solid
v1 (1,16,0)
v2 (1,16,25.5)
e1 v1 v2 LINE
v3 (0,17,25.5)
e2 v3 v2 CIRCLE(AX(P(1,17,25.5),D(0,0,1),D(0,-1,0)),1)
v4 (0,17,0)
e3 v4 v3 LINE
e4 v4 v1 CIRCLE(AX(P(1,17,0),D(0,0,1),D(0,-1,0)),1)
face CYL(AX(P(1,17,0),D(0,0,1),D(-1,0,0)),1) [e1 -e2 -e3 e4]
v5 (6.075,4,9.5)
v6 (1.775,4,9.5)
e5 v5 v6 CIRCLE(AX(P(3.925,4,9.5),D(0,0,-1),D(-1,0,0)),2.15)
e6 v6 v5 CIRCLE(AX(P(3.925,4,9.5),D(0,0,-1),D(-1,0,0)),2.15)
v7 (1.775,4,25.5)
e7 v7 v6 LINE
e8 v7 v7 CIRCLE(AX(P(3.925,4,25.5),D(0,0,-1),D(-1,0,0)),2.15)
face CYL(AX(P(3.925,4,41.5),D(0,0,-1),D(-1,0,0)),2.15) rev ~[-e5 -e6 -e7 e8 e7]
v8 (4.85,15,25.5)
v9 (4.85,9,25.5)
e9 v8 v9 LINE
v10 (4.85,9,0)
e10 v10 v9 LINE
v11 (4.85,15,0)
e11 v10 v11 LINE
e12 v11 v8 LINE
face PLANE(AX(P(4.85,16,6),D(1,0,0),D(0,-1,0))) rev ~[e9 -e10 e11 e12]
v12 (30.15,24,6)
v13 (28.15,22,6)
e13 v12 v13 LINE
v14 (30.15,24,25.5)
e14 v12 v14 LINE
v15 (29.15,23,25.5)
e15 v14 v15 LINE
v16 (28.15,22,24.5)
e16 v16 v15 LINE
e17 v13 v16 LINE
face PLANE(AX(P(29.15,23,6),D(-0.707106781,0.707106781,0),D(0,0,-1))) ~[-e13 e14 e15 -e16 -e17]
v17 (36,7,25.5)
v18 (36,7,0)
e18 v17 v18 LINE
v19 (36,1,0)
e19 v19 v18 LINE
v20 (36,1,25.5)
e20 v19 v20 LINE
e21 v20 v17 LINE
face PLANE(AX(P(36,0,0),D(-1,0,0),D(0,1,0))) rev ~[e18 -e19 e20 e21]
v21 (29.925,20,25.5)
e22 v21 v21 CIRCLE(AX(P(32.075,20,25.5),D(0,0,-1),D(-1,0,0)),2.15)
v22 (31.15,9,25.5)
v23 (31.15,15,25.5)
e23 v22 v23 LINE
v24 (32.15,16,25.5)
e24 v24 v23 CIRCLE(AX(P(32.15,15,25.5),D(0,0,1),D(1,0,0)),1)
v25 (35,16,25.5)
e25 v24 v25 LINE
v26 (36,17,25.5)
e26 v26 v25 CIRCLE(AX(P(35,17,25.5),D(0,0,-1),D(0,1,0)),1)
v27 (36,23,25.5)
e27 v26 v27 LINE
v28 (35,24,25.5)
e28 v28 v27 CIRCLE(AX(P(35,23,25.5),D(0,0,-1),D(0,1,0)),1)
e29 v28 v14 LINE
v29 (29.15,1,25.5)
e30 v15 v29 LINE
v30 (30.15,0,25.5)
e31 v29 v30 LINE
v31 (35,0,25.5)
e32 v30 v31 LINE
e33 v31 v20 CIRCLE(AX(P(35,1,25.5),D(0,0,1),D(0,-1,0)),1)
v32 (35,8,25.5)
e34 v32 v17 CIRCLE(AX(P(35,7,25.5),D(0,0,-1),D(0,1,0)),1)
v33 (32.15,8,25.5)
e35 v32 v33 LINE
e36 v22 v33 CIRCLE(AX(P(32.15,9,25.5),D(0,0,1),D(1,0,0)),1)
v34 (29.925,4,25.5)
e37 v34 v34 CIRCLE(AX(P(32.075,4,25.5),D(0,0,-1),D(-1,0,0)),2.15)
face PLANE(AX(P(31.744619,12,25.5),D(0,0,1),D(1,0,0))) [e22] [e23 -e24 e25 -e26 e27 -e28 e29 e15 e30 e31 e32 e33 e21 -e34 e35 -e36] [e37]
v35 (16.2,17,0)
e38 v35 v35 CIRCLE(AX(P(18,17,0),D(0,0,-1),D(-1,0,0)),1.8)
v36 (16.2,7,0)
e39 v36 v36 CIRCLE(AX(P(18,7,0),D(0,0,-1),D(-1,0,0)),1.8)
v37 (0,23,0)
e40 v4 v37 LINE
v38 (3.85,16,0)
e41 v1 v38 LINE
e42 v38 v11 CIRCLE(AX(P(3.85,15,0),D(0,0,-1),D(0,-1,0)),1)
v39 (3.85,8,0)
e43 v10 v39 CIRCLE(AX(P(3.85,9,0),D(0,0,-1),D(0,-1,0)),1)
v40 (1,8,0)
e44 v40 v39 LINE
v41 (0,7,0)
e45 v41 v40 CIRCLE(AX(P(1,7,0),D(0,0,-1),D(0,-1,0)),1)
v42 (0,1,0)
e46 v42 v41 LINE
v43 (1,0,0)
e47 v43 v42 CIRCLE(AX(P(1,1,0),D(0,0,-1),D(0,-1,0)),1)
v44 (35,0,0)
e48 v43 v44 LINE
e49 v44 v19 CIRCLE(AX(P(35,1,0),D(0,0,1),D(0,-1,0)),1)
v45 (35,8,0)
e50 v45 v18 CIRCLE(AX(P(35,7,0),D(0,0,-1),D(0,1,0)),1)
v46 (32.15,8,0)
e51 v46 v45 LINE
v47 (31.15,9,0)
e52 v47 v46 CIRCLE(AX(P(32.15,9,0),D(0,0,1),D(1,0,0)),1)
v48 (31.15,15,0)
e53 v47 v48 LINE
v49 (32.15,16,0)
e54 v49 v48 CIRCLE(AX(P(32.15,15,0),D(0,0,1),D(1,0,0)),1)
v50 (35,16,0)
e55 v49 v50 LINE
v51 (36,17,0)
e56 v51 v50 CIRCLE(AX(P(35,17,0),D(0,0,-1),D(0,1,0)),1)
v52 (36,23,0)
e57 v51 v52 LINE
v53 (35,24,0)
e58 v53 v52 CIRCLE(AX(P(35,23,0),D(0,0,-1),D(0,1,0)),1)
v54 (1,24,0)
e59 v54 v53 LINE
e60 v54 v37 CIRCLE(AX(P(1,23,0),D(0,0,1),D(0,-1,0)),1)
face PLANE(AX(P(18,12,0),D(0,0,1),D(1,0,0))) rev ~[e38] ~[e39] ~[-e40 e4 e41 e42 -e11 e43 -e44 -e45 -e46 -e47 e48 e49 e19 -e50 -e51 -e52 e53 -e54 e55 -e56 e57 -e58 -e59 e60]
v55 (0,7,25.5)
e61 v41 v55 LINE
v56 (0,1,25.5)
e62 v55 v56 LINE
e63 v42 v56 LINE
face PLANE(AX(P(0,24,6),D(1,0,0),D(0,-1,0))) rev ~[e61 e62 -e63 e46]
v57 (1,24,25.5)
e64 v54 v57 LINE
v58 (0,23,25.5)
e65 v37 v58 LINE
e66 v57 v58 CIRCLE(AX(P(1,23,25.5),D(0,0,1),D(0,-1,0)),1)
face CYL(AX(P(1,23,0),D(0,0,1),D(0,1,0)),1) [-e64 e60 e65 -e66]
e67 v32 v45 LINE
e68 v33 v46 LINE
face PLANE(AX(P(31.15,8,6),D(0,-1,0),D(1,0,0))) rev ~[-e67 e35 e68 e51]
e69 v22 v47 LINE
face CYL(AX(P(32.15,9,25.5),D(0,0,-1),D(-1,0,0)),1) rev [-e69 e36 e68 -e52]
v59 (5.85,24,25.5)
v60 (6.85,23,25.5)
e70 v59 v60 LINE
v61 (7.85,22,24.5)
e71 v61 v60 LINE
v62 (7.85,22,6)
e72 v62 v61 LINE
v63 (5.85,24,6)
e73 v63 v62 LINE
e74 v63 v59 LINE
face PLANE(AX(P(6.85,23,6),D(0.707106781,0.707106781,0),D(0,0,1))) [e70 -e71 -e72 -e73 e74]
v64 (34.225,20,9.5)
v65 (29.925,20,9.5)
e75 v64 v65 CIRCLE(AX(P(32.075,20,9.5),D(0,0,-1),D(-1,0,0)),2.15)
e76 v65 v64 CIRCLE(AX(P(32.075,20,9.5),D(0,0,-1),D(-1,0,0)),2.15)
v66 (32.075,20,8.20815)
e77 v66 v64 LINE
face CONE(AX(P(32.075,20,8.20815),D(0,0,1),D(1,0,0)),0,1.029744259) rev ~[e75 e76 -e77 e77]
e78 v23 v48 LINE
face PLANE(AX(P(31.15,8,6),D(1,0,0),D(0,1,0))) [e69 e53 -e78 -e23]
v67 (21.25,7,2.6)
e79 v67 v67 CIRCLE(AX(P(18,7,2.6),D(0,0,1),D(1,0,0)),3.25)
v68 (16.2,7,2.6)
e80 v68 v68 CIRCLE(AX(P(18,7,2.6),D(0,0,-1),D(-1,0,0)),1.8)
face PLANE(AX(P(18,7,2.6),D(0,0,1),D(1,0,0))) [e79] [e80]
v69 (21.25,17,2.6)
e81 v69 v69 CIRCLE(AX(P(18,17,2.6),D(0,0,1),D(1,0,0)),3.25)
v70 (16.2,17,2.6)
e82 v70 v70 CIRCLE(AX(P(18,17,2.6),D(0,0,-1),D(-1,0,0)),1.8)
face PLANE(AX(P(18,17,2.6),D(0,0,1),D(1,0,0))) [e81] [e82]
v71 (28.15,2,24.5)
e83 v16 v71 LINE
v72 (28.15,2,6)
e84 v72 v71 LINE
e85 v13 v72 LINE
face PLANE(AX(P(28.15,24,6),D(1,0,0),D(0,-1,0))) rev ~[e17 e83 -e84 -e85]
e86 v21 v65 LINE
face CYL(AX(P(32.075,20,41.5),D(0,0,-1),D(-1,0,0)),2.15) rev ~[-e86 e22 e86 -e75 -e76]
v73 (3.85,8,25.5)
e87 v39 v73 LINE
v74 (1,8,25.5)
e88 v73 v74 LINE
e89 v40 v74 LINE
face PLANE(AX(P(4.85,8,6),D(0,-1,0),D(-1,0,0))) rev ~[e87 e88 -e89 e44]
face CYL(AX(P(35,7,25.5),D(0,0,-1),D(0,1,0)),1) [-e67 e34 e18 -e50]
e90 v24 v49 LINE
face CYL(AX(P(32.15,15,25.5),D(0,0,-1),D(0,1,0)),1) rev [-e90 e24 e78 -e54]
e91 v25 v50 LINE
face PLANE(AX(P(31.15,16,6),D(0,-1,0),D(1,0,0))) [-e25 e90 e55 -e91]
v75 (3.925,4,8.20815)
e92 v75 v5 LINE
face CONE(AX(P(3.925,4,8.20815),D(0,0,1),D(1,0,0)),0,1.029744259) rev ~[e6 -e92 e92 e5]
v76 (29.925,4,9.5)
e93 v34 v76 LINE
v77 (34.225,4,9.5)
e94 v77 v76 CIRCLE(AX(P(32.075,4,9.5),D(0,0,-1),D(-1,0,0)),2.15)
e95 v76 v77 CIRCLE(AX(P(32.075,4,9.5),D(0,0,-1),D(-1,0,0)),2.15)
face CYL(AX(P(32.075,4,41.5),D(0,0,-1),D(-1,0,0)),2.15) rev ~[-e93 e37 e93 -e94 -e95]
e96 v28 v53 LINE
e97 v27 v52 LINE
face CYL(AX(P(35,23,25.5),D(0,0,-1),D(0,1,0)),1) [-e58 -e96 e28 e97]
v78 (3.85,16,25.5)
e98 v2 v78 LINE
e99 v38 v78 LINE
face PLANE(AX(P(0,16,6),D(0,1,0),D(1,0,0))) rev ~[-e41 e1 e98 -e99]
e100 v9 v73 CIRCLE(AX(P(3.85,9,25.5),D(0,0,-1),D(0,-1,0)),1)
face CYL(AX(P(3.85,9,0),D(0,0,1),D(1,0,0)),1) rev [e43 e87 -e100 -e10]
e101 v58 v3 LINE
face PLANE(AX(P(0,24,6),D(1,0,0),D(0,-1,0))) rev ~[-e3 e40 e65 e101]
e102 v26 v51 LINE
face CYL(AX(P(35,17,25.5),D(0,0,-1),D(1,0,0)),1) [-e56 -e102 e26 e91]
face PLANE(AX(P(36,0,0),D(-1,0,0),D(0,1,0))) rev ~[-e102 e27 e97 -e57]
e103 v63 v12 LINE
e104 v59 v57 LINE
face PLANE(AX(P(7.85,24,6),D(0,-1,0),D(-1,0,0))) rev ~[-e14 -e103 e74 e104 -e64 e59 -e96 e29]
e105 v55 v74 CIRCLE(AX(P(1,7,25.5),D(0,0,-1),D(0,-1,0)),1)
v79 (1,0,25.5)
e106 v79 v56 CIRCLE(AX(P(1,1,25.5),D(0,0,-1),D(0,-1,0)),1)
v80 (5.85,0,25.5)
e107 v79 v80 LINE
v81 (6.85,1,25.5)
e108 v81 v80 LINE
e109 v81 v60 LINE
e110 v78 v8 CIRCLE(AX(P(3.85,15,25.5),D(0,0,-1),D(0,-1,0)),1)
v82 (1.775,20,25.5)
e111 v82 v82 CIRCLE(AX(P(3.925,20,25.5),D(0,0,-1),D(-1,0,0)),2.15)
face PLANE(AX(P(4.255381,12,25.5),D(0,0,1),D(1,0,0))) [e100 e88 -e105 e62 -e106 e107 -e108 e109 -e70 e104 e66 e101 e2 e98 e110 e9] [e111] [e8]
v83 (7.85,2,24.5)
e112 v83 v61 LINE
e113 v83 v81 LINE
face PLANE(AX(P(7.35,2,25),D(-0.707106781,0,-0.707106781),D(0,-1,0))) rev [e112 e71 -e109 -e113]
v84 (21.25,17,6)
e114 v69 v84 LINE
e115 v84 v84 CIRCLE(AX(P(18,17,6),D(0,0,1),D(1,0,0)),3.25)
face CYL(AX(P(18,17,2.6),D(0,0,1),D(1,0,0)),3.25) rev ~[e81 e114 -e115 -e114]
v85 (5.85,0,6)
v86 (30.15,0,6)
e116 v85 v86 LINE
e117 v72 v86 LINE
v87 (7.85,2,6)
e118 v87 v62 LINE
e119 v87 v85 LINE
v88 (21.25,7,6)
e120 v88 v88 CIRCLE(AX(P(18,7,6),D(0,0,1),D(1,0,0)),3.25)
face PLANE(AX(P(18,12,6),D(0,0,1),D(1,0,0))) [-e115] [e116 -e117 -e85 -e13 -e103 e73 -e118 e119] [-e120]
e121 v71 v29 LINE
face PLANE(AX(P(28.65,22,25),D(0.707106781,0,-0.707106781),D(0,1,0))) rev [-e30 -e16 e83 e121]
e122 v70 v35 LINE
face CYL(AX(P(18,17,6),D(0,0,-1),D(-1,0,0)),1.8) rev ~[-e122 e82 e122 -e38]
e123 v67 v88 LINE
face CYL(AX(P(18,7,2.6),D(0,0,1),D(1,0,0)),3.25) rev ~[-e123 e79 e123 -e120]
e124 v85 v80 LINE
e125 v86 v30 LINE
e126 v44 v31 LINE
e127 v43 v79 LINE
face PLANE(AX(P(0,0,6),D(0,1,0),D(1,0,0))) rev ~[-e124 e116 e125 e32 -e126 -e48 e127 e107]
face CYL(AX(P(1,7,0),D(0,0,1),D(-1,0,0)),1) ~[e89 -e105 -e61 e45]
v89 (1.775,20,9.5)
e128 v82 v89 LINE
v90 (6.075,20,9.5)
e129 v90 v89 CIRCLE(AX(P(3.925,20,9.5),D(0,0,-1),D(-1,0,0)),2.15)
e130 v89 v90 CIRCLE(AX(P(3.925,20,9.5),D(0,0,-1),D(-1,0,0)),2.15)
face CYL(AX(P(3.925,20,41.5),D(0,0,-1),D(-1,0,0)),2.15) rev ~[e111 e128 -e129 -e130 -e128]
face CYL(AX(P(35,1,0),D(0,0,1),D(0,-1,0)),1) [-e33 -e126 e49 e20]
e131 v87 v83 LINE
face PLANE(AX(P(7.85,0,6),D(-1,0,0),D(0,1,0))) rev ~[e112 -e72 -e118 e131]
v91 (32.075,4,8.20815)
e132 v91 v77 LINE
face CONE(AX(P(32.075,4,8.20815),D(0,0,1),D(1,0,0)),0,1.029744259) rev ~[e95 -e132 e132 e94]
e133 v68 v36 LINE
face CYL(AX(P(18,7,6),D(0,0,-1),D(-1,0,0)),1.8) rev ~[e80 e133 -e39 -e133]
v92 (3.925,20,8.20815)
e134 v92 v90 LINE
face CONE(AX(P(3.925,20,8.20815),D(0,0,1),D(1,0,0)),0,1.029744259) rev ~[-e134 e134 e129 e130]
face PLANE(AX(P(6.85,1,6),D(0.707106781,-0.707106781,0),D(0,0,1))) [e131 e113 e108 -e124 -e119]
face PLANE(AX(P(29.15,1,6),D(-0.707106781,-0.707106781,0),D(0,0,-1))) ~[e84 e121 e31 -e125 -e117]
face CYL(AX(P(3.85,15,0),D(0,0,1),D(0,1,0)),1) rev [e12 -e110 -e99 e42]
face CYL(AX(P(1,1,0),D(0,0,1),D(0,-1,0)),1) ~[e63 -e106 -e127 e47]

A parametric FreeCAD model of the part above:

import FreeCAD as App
import Part
import Sketcher
from FreeCAD import Vector


def edges_at(feature, points):
    """Names of the edges that pass closest to the given points."""
    edges = feature.Shape.Edges
    near = lambda p: min(range(len(edges)), key=lambda i: edges[i].distToShape(Part.Vertex(*p))[0])
    return sorted({f"Edge{near(p) + 1}" for p in points})


def add_polygon(sketch, points):
    """Adds a closed chain of lines whose ends are joined by coincident constraints."""
    first, n = sketch.GeometryCount, len(points)
    for a, b in zip(points, points[1:] + points[:1]):
        sketch.addGeometry(Part.LineSegment(App.Vector(*a, 0), App.Vector(*b, 0)), False)
    for i in range(n):
        sketch.addConstraint(Sketcher.Constraint("Coincident", first + i, 2, first + (i + 1) % n, 1))

doc = App.newDocument("Part")
body = doc.addObject("PartDesign::Body", "Body")

# Sketch on XY plane
sketch1 = body.newObject("Sketcher::SketchObject", "Sketch")
sketch1.AttachmentSupport = (doc.getObject("XY_Plane"), [""])
sketch1.MapMode = "FlatFace"
add_polygon(sketch1, [(0, 24), (0, 0), (36, 0), (36, 24)])  # lines 0-3
sketch1.addConstraint(Sketcher.Constraint("Vertical", 0))
sketch1.addConstraint(Sketcher.Constraint("Horizontal", 1))
sketch1.addConstraint(Sketcher.Constraint("Vertical", 2))
sketch1.addConstraint(Sketcher.Constraint("Horizontal", 3))
sketch1.addConstraint(Sketcher.Constraint("Coincident", 0, 2, -1, 1))
sketch1.addConstraint(Sketcher.Constraint("DistanceX", 1, 1, 1, 2, 36.0))
sketch1.addConstraint(Sketcher.Constraint("DistanceY", 0, 2, 0, 1, 24.0))
pad1 = body.newObject("PartDesign::Pad", "Pad")
pad1.Profile = sketch1
pad1.Length = 6

# Sketch on XY plane
sketch2 = body.newObject("Sketcher::SketchObject", "Sketch001")
sketch2.AttachmentSupport = (doc.getObject("XY_Plane"), [""])
sketch2.MapMode = "FlatFace"
sketch2.AttachmentOffset = App.Placement(Vector(0, 0, 6), App.Rotation())
sketch2.addGeometry(Part.Circle(Vector(18, 17, 0), Vector(0, 0, 1), 1.8), False)
sketch2.addGeometry(Part.Circle(Vector(18, 7, 0), Vector(0, 0, 1), 1.8), False)
sketch2.addConstraint(Sketcher.Constraint("Equal", 0, 1))
sketch2.addConstraint(Sketcher.Constraint("Vertical", 0, 3, 1, 3))
sketch2.addConstraint(Sketcher.Constraint("Diameter", 0, 3.6))
sketch2.addConstraint(Sketcher.Constraint("DistanceX", -1, 1, 0, 3, 18.0))
sketch2.addConstraint(Sketcher.Constraint("DistanceY", -1, 1, 0, 3, 17.0))
sketch2.addConstraint(Sketcher.Constraint("DistanceY", -1, 1, 1, 3, 7.0))
doc.recompute()
hole = body.newObject("PartDesign::Hole", "Hole")
hole.Profile = sketch2
hole.ThreadType = "None"
hole.Diameter = 3.6
hole.DepthType = "Dimension"
hole.Depth = 12
hole.DrillPoint = "Angled"
hole.DrillPointAngle = 118
hole.HoleCutType = "Counterbore"
hole.HoleCutDiameter = 6.5
hole.HoleCutDepth = 3.4

# Sketch on XY plane
sketch3 = body.newObject("Sketcher::SketchObject", "Sketch002")
sketch3.AttachmentSupport = (doc.getObject("XY_Plane"), [""])
sketch3.MapMode = "FlatFace"
sketch3.AttachmentOffset = App.Placement(Vector(0, 0, 6), App.Rotation())
add_polygon(sketch3, [(7.8, 24), (0, 24), (0, 16), (4.8, 16), (4.8, 8), (0, 8), (0, 0), (7.8, 0)])  # lines 0-7
add_polygon(sketch3, [(36, 24), (28.1, 24), (28.1, 0), (36, 0), (36, 8), (31.1, 8), (31.1, 16), (36, 16)])  # lines 8-15
sketch3.addConstraint(Sketcher.Constraint("Horizontal", 0))
sketch3.addConstraint(Sketcher.Constraint("Vertical", 1))
sketch3.addConstraint(Sketcher.Constraint("Horizontal", 2))
sketch3.addConstraint(Sketcher.Constraint("Vertical", 3))
sketch3.addConstraint(Sketcher.Constraint("Horizontal", 4))
sketch3.addConstraint(Sketcher.Constraint("Vertical", 5))
sketch3.addConstraint(Sketcher.Constraint("Horizontal", 6))
sketch3.addConstraint(Sketcher.Constraint("Vertical", 7))
sketch3.addConstraint(Sketcher.Constraint("Horizontal", 8))
sketch3.addConstraint(Sketcher.Constraint("Vertical", 9))
sketch3.addConstraint(Sketcher.Constraint("Horizontal", 10))
sketch3.addConstraint(Sketcher.Constraint("Vertical", 11))
sketch3.addConstraint(Sketcher.Constraint("Horizontal", 12))
sketch3.addConstraint(Sketcher.Constraint("Vertical", 13))
sketch3.addConstraint(Sketcher.Constraint("Horizontal", 14))
sketch3.addConstraint(Sketcher.Constraint("Vertical", 15))
sketch3.addConstraint(Sketcher.Constraint("Coincident", 5, 2, -1, 1))
sketch3.addConstraint(Sketcher.Constraint("PointOnObject", 0, 2, -2))
sketch3.addConstraint(Sketcher.Constraint("PointOnObject", 9, 2, -1))
sketch3.addConstraint(Sketcher.Constraint("Horizontal", 7, 2, 8, 2))
sketch3.addConstraint(Sketcher.Constraint("Horizontal", 4, 2, 11, 2))
sketch3.addConstraint(Sketcher.Constraint("Horizontal", 2, 2, 13, 2))
sketch3.addConstraint(Sketcher.Constraint("Vertical", 11, 2, 14, 2))
sketch3.addConstraint(Sketcher.Constraint("Equal", 6, 8))
sketch3.addConstraint(Sketcher.Constraint("Equal", 4, 12))
sketch3.addConstraint(Sketcher.Constraint("Equal", 1, 3))
sketch3.addConstraint(Sketcher.Constraint("Equal", 3, 5))
sketch3.addConstraint(Sketcher.Constraint("DistanceY", 1, 2, 1, 1, 8.0))
sketch3.addConstraint(Sketcher.Constraint("DistanceX", -1, 1, 10, 2, 36.0))
sketch3.addConstraint(Sketcher.Constraint("DistanceX", 3, 2, 6, 2, 3.0))
sketch3.addConstraint(Sketcher.Constraint("DistanceX", 0, 2, 0, 1, 7.85))
pad2 = body.newObject("PartDesign::Pad", "Pad001")
pad2.Profile = sketch3
pad2.Length = 19.5

# Sketch on XY plane
sketch4 = body.newObject("Sketcher::SketchObject", "Sketch003")
sketch4.AttachmentSupport = (doc.getObject("XY_Plane"), [""])
sketch4.MapMode = "FlatFace"
sketch4.AttachmentOffset = App.Placement(Vector(0, 0, 6), App.Rotation())
add_polygon(sketch4, [(31.1, 16), (31.1, 8), (36, 8), (36, 16)])  # lines 0-3
add_polygon(sketch4, [(0, 16), (0, 8), (4.8, 8), (4.8, 16)])  # lines 4-7
sketch4.addConstraint(Sketcher.Constraint("Vertical", 0))
sketch4.addConstraint(Sketcher.Constraint("Horizontal", 1))
sketch4.addConstraint(Sketcher.Constraint("Vertical", 2))
sketch4.addConstraint(Sketcher.Constraint("Horizontal", 3))
sketch4.addConstraint(Sketcher.Constraint("Vertical", 4))
sketch4.addConstraint(Sketcher.Constraint("Horizontal", 5))
sketch4.addConstraint(Sketcher.Constraint("Vertical", 6))
sketch4.addConstraint(Sketcher.Constraint("Horizontal", 7))
sketch4.addConstraint(Sketcher.Constraint("PointOnObject", 4, 2, -2))
sketch4.addConstraint(Sketcher.Constraint("Horizontal", 1, 2, 4, 2))
sketch4.addConstraint(Sketcher.Constraint("Horizontal", 3, 2, 6, 2))
sketch4.addConstraint(Sketcher.Constraint("Equal", 3, 5))
sketch4.addConstraint(Sketcher.Constraint("DistanceY", 0, 2, 0, 1, 8.0))
sketch4.addConstraint(Sketcher.Constraint("DistanceY", -1, 1, 0, 2, 8.0))
sketch4.addConstraint(Sketcher.Constraint("DistanceX", -1, 1, 1, 2, 36.0))
sketch4.addConstraint(Sketcher.Constraint("DistanceX", 1, 1, 1, 2, 4.85))
pocket1 = body.newObject("PartDesign::Pocket", "Pocket")
pocket1.Profile = sketch4
pocket1.Type = "ThroughAll"

# Sketch on XY plane
sketch5 = body.newObject("Sketcher::SketchObject", "Sketch004")
sketch5.AttachmentSupport = (doc.getObject("XY_Plane"), [""])
sketch5.MapMode = "FlatFace"
sketch5.AttachmentOffset = App.Placement(Vector(0, 0, 25.5), App.Rotation())
sketch5.addGeometry(Part.Circle(Vector(3.9, 20, 0), Vector(0, 0, 1), 2.1), False)
sketch5.addGeometry(Part.Circle(Vector(3.9, 4, 0), Vector(0, 0, 1), 2.1), False)
sketch5.addGeometry(Part.Circle(Vector(32.1, 4, 0), Vector(0, 0, 1), 2.1), False)
sketch5.addGeometry(Part.Circle(Vector(32.1, 20, 0), Vector(0, 0, 1), 2.1), False)
sketch5.addConstraint(Sketcher.Constraint("Equal", 0, 1))
sketch5.addConstraint(Sketcher.Constraint("Equal", 1, 2))
sketch5.addConstraint(Sketcher.Constraint("Equal", 2, 3))
sketch5.addConstraint(Sketcher.Constraint("Horizontal", 1, 3, 2, 3))
sketch5.addConstraint(Sketcher.Constraint("Horizontal", 0, 3, 3, 3))
sketch5.addConstraint(Sketcher.Constraint("Vertical", 0, 3, 1, 3))
sketch5.addConstraint(Sketcher.Constraint("Vertical", 2, 3, 3, 3))
sketch5.addConstraint(Sketcher.Constraint("Diameter", 0, 4.3))
sketch5.addConstraint(Sketcher.Constraint("DistanceY", -1, 1, 0, 3, 20.0))
sketch5.addConstraint(Sketcher.Constraint("DistanceY", -1, 1, 1, 3, 4.0))
sketch5.addConstraint(Sketcher.Constraint("DistanceX", 1, 3, 2, 3, 28.15))
sketch5.addConstraint(Sketcher.Constraint("DistanceX", -1, 1, 0, 3, 3.925))
doc.recompute()
hole2 = body.newObject("PartDesign::Hole", "Hole001")
hole2.Profile = sketch5
hole2.ThreadType = "None"
hole2.Diameter = 4.3
hole2.DepthType = "Dimension"
hole2.Depth = 16
hole2.DrillPoint = "Angled"
hole2.DrillPointAngle = 118
doc.recompute()

fillet = body.newObject("PartDesign::Fillet", "Fillet")
fillet.Base = (hole2, edges_at(hole2, [
    (0, 16, 12.75),
    (4.85, 16, 12.75),
    (4.85, 8, 12.75),
    (0, 8, 12.75),
    (36, 8, 12.75),
    (31.15, 8, 12.75),
    (31.15, 16, 12.75),
    (36, 16, 12.75),
    (0, 24, 12.75),
    (36, 24, 12.75),
    (36, 0, 12.75),
    (0, 0, 12.75),
]))
fillet.Radius = 1
doc.recompute()

chamfer = body.newObject("PartDesign::Chamfer", "Chamfer")
chamfer.Base = (fillet, edges_at(fillet, [
    (7.85, 0, 15.75),
    (7.85, 24, 15.75),
    (28.15, 24, 15.75),
    (28.15, 0, 15.75),
]))
chamfer.Size = 2
doc.recompute()

chamfer2 = body.newObject("PartDesign::Chamfer", "Chamfer001")
chamfer2.Base = (chamfer, edges_at(chamfer, [(28.15, 12, 25.5), (7.85, 12, 25.5)]))
chamfer2.Size = 1

doc.recompute()
